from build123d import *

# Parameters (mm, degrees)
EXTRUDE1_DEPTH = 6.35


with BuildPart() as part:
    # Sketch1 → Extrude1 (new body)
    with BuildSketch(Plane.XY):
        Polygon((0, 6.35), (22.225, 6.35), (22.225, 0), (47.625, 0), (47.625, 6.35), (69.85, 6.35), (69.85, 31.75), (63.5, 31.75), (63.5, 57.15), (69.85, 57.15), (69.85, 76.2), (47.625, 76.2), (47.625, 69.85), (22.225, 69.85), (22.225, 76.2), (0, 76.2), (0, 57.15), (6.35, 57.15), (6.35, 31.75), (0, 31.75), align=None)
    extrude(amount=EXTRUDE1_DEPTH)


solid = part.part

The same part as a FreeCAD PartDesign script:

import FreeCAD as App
import Part
import Sketcher
from FreeCAD import Vector
Q = App.Units.Quantity


def add_polygon(sketch, points):
    """Adds a closed chain of lines whose ends are joined by coincident constraints."""
    first, n = sketch.GeometryCount, len(points)
    for a, b in zip(points, points[1:] + points[:1]):
        sketch.addGeometry(Part.LineSegment(App.Vector(*a, 0), App.Vector(*b, 0)), False)
    for i in range(n):
        sketch.addConstraint(Sketcher.Constraint("Coincident", first + i, 2, first + (i + 1) % n, 1))

doc = App.newDocument("Part")
params = doc.addObject("Spreadsheet::Sheet", "Params")
for row, (alias, value) in enumerate([
    ("sketch1_width", "1 in"),
    ("sketch1_width2", "0.25 in"),
    ("pad1_length", "0.25 in"),
], start=1):
    params.set(f"A{row}", alias)
    params.set(f"B{row}", "=" + value)
    params.setAlias(f"B{row}", alias)

body = doc.addObject("PartDesign::Body", "Body")

# Sketch on XY plane
sketch1 = doc.addObject("Sketcher::SketchObject", "Sketch")
body.addObject(sketch1)
sketch1.AttachmentSupport = (doc.XY_Plane, [""])
sketch1.MapMode = "FlatFace"
add_polygon(sketch1, [(0, 6.35), (22.225, 6.35), (22.225, 0), (47.625, 0), (47.625, 6.35), (69.85, 6.35), (69.85, 31.75), (63.5, 31.75), (63.5, 57.15), (69.85, 57.15), (69.85, 76.2), (47.625, 76.2), (47.625, 69.85), (22.225, 69.85), (22.225, 76.2), (0, 76.2), (0, 57.15), (6.35, 57.15), (6.35, 31.75), (0, 31.75)])  # lines 0-19
sketch1.addConstraint([
    Sketcher.Constraint("Horizontal", 0),
    Sketcher.Constraint("Vertical", 1),
    Sketcher.Constraint("Horizontal", 2),
    Sketcher.Constraint("Vertical", 3),
    Sketcher.Constraint("Horizontal", 4),
    Sketcher.Constraint("Vertical", 5),
    Sketcher.Constraint("Horizontal", 6),
    Sketcher.Constraint("Vertical", 7),
    Sketcher.Constraint("Horizontal", 8),
    Sketcher.Constraint("Vertical", 9),
    Sketcher.Constraint("Horizontal", 10),
    Sketcher.Constraint("Vertical", 11),
    Sketcher.Constraint("Horizontal", 12),
    Sketcher.Constraint("Vertical", 13),
    Sketcher.Constraint("Horizontal", 14),
    Sketcher.Constraint("Vertical", 15),
    Sketcher.Constraint("Horizontal", 16),
    Sketcher.Constraint("Vertical", 17),
    Sketcher.Constraint("Horizontal", 18),
    Sketcher.Constraint("Vertical", 19),
    Sketcher.Constraint("PointOnObject", 1, 2, -1),
    Sketcher.Constraint("PointOnObject", 14, 2, -2),
    Sketcher.Constraint("PointOnObject", 18, 2, -2),
    Sketcher.Constraint("Horizontal", 0, 2, 3, 2),
    Sketcher.Constraint("Horizontal", 10, 2, 13, 2),
    Sketcher.Constraint("Horizontal", 8, 2, 15, 2),
    Sketcher.Constraint("Horizontal", 6, 2, 17, 2),
    Sketcher.Constraint("Vertical", 5, 2, 8, 2),
    Sketcher.Constraint("Vertical", 3, 2, 10, 2),
    Sketcher.Constraint("Vertical", 1, 2, 12, 2),
    Sketcher.Constraint("Equal", 0, 4),
    Sketcher.Constraint("Equal", 8, 16),
    Sketcher.Constraint("Equal", 18, 1),
    Sketcher.Constraint("Equal", 12, 5),
    Sketcher.Constraint("Equal", 5, 7),
    Sketcher.Constraint("Equal", 3, 11),
    Sketcher.Constraint("DistanceX", 2, 1, 2, 2, Q("1 in")),
    Sketcher.Constraint("DistanceY", -1, 1, 9, 2, Q("3 in")),
    Sketcher.Constraint("DistanceX", 6, 2, 6, 1, Q("0.25 in")),
    Sketcher.Constraint("DistanceX", -1, 1, 6, 2, Q("2.5 in")),
])
sketch1.setExpression("Constraints[56]", "Params.sketch1_width")
sketch1.setExpression("Constraints[58]", "Params.sketch1_width2")
pad1 = doc.addObject("PartDesign::Pad", "Pad")
body.addObject(pad1)
pad1.Profile = sketch1
pad1.setExpression("Length", "Params.pad1_length")

doc.recompute()
